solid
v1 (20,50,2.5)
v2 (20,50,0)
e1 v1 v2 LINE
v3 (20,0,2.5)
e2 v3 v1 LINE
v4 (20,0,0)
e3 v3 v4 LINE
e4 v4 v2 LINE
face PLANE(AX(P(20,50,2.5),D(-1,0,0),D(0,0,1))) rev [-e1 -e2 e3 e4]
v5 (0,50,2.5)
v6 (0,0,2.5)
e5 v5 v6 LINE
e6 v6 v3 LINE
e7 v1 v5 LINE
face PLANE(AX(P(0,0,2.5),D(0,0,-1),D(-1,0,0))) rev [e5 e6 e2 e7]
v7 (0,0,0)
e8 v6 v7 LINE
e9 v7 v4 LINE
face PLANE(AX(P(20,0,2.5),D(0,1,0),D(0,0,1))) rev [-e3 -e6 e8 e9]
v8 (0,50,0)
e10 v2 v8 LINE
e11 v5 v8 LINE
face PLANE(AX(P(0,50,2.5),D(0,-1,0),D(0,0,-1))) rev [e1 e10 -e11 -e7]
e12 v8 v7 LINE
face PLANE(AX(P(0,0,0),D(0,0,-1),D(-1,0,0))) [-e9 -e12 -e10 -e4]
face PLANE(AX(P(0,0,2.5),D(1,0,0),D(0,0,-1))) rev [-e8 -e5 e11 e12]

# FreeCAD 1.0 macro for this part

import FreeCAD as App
import Part
import Sketcher
from FreeCAD import Vector

doc = App.newDocument("Part")
params = doc.addObject("Spreadsheet::Sheet", "Params")
for row, (alias, value) in enumerate([
    ("sketch1_width", "20 mm"),
    ("sketch1_height", "50 mm"),
    ("pad1_length", "2.5 mm"),
], start=1):
    params.set(f"A{row}", alias)
    params.set(f"B{row}", "=" + value)
    params.setAlias(f"B{row}", alias)

body = doc.addObject("PartDesign::Body", "Body")

# Sketch on XY plane
sketch1 = doc.addObject("Sketcher::SketchObject", "Sketch")
body.addObject(sketch1)
sketch1.AttachmentSupport = (doc.XY_Plane, [""])
sketch1.MapMode = "FlatFace"
sketch1.addGeometry(Part.LineSegment(Vector(0, 50, 0), Vector(0, 0, 0)), False)
sketch1.addGeometry(Part.LineSegment(Vector(0, 0, 0), Vector(20, 0, 0)), False)
sketch1.addGeometry(Part.LineSegment(Vector(20, 0, 0), Vector(20, 50, 0)), False)
sketch1.addGeometry(Part.LineSegment(Vector(20, 50, 0), Vector(0, 50, 0)), False)
sketch1.addConstraint(Sketcher.Constraint("Coincident", 0, 2, 1, 1))
sketch1.addConstraint(Sketcher.Constraint("Coincident", 1, 2, 2, 1))
sketch1.addConstraint(Sketcher.Constraint("Coincident", 2, 2, 3, 1))
sketch1.addConstraint(Sketcher.Constraint("Coincident", 3, 2, 0, 1))
sketch1.addConstraint(Sketcher.Constraint("Vertical", 0))
sketch1.addConstraint(Sketcher.Constraint("Horizontal", 1))
sketch1.addConstraint(Sketcher.Constraint("Vertical", 2))
sketch1.addConstraint(Sketcher.Constraint("Horizontal", 3))
sketch1.addConstraint(Sketcher.Constraint("Coincident", 0, 2, -1, 1))
sketch1.addConstraint(Sketcher.Constraint("DistanceX", 1, 1, 1, 2, 20.0))
sketch1.addConstraint(Sketcher.Constraint("DistanceY", 0, 2, 0, 1, 50.0))
sketch1.setExpression("Constraints[9]", "Params.sketch1_width")
sketch1.setExpression("Constraints[10]", "Params.sketch1_height")
pad1 = doc.addObject("PartDesign::Pad", "Pad")
body.addObject(pad1)
pad1.Profile = sketch1
pad1.setExpression("Length", "Params.pad1_length")

doc.recompute()
